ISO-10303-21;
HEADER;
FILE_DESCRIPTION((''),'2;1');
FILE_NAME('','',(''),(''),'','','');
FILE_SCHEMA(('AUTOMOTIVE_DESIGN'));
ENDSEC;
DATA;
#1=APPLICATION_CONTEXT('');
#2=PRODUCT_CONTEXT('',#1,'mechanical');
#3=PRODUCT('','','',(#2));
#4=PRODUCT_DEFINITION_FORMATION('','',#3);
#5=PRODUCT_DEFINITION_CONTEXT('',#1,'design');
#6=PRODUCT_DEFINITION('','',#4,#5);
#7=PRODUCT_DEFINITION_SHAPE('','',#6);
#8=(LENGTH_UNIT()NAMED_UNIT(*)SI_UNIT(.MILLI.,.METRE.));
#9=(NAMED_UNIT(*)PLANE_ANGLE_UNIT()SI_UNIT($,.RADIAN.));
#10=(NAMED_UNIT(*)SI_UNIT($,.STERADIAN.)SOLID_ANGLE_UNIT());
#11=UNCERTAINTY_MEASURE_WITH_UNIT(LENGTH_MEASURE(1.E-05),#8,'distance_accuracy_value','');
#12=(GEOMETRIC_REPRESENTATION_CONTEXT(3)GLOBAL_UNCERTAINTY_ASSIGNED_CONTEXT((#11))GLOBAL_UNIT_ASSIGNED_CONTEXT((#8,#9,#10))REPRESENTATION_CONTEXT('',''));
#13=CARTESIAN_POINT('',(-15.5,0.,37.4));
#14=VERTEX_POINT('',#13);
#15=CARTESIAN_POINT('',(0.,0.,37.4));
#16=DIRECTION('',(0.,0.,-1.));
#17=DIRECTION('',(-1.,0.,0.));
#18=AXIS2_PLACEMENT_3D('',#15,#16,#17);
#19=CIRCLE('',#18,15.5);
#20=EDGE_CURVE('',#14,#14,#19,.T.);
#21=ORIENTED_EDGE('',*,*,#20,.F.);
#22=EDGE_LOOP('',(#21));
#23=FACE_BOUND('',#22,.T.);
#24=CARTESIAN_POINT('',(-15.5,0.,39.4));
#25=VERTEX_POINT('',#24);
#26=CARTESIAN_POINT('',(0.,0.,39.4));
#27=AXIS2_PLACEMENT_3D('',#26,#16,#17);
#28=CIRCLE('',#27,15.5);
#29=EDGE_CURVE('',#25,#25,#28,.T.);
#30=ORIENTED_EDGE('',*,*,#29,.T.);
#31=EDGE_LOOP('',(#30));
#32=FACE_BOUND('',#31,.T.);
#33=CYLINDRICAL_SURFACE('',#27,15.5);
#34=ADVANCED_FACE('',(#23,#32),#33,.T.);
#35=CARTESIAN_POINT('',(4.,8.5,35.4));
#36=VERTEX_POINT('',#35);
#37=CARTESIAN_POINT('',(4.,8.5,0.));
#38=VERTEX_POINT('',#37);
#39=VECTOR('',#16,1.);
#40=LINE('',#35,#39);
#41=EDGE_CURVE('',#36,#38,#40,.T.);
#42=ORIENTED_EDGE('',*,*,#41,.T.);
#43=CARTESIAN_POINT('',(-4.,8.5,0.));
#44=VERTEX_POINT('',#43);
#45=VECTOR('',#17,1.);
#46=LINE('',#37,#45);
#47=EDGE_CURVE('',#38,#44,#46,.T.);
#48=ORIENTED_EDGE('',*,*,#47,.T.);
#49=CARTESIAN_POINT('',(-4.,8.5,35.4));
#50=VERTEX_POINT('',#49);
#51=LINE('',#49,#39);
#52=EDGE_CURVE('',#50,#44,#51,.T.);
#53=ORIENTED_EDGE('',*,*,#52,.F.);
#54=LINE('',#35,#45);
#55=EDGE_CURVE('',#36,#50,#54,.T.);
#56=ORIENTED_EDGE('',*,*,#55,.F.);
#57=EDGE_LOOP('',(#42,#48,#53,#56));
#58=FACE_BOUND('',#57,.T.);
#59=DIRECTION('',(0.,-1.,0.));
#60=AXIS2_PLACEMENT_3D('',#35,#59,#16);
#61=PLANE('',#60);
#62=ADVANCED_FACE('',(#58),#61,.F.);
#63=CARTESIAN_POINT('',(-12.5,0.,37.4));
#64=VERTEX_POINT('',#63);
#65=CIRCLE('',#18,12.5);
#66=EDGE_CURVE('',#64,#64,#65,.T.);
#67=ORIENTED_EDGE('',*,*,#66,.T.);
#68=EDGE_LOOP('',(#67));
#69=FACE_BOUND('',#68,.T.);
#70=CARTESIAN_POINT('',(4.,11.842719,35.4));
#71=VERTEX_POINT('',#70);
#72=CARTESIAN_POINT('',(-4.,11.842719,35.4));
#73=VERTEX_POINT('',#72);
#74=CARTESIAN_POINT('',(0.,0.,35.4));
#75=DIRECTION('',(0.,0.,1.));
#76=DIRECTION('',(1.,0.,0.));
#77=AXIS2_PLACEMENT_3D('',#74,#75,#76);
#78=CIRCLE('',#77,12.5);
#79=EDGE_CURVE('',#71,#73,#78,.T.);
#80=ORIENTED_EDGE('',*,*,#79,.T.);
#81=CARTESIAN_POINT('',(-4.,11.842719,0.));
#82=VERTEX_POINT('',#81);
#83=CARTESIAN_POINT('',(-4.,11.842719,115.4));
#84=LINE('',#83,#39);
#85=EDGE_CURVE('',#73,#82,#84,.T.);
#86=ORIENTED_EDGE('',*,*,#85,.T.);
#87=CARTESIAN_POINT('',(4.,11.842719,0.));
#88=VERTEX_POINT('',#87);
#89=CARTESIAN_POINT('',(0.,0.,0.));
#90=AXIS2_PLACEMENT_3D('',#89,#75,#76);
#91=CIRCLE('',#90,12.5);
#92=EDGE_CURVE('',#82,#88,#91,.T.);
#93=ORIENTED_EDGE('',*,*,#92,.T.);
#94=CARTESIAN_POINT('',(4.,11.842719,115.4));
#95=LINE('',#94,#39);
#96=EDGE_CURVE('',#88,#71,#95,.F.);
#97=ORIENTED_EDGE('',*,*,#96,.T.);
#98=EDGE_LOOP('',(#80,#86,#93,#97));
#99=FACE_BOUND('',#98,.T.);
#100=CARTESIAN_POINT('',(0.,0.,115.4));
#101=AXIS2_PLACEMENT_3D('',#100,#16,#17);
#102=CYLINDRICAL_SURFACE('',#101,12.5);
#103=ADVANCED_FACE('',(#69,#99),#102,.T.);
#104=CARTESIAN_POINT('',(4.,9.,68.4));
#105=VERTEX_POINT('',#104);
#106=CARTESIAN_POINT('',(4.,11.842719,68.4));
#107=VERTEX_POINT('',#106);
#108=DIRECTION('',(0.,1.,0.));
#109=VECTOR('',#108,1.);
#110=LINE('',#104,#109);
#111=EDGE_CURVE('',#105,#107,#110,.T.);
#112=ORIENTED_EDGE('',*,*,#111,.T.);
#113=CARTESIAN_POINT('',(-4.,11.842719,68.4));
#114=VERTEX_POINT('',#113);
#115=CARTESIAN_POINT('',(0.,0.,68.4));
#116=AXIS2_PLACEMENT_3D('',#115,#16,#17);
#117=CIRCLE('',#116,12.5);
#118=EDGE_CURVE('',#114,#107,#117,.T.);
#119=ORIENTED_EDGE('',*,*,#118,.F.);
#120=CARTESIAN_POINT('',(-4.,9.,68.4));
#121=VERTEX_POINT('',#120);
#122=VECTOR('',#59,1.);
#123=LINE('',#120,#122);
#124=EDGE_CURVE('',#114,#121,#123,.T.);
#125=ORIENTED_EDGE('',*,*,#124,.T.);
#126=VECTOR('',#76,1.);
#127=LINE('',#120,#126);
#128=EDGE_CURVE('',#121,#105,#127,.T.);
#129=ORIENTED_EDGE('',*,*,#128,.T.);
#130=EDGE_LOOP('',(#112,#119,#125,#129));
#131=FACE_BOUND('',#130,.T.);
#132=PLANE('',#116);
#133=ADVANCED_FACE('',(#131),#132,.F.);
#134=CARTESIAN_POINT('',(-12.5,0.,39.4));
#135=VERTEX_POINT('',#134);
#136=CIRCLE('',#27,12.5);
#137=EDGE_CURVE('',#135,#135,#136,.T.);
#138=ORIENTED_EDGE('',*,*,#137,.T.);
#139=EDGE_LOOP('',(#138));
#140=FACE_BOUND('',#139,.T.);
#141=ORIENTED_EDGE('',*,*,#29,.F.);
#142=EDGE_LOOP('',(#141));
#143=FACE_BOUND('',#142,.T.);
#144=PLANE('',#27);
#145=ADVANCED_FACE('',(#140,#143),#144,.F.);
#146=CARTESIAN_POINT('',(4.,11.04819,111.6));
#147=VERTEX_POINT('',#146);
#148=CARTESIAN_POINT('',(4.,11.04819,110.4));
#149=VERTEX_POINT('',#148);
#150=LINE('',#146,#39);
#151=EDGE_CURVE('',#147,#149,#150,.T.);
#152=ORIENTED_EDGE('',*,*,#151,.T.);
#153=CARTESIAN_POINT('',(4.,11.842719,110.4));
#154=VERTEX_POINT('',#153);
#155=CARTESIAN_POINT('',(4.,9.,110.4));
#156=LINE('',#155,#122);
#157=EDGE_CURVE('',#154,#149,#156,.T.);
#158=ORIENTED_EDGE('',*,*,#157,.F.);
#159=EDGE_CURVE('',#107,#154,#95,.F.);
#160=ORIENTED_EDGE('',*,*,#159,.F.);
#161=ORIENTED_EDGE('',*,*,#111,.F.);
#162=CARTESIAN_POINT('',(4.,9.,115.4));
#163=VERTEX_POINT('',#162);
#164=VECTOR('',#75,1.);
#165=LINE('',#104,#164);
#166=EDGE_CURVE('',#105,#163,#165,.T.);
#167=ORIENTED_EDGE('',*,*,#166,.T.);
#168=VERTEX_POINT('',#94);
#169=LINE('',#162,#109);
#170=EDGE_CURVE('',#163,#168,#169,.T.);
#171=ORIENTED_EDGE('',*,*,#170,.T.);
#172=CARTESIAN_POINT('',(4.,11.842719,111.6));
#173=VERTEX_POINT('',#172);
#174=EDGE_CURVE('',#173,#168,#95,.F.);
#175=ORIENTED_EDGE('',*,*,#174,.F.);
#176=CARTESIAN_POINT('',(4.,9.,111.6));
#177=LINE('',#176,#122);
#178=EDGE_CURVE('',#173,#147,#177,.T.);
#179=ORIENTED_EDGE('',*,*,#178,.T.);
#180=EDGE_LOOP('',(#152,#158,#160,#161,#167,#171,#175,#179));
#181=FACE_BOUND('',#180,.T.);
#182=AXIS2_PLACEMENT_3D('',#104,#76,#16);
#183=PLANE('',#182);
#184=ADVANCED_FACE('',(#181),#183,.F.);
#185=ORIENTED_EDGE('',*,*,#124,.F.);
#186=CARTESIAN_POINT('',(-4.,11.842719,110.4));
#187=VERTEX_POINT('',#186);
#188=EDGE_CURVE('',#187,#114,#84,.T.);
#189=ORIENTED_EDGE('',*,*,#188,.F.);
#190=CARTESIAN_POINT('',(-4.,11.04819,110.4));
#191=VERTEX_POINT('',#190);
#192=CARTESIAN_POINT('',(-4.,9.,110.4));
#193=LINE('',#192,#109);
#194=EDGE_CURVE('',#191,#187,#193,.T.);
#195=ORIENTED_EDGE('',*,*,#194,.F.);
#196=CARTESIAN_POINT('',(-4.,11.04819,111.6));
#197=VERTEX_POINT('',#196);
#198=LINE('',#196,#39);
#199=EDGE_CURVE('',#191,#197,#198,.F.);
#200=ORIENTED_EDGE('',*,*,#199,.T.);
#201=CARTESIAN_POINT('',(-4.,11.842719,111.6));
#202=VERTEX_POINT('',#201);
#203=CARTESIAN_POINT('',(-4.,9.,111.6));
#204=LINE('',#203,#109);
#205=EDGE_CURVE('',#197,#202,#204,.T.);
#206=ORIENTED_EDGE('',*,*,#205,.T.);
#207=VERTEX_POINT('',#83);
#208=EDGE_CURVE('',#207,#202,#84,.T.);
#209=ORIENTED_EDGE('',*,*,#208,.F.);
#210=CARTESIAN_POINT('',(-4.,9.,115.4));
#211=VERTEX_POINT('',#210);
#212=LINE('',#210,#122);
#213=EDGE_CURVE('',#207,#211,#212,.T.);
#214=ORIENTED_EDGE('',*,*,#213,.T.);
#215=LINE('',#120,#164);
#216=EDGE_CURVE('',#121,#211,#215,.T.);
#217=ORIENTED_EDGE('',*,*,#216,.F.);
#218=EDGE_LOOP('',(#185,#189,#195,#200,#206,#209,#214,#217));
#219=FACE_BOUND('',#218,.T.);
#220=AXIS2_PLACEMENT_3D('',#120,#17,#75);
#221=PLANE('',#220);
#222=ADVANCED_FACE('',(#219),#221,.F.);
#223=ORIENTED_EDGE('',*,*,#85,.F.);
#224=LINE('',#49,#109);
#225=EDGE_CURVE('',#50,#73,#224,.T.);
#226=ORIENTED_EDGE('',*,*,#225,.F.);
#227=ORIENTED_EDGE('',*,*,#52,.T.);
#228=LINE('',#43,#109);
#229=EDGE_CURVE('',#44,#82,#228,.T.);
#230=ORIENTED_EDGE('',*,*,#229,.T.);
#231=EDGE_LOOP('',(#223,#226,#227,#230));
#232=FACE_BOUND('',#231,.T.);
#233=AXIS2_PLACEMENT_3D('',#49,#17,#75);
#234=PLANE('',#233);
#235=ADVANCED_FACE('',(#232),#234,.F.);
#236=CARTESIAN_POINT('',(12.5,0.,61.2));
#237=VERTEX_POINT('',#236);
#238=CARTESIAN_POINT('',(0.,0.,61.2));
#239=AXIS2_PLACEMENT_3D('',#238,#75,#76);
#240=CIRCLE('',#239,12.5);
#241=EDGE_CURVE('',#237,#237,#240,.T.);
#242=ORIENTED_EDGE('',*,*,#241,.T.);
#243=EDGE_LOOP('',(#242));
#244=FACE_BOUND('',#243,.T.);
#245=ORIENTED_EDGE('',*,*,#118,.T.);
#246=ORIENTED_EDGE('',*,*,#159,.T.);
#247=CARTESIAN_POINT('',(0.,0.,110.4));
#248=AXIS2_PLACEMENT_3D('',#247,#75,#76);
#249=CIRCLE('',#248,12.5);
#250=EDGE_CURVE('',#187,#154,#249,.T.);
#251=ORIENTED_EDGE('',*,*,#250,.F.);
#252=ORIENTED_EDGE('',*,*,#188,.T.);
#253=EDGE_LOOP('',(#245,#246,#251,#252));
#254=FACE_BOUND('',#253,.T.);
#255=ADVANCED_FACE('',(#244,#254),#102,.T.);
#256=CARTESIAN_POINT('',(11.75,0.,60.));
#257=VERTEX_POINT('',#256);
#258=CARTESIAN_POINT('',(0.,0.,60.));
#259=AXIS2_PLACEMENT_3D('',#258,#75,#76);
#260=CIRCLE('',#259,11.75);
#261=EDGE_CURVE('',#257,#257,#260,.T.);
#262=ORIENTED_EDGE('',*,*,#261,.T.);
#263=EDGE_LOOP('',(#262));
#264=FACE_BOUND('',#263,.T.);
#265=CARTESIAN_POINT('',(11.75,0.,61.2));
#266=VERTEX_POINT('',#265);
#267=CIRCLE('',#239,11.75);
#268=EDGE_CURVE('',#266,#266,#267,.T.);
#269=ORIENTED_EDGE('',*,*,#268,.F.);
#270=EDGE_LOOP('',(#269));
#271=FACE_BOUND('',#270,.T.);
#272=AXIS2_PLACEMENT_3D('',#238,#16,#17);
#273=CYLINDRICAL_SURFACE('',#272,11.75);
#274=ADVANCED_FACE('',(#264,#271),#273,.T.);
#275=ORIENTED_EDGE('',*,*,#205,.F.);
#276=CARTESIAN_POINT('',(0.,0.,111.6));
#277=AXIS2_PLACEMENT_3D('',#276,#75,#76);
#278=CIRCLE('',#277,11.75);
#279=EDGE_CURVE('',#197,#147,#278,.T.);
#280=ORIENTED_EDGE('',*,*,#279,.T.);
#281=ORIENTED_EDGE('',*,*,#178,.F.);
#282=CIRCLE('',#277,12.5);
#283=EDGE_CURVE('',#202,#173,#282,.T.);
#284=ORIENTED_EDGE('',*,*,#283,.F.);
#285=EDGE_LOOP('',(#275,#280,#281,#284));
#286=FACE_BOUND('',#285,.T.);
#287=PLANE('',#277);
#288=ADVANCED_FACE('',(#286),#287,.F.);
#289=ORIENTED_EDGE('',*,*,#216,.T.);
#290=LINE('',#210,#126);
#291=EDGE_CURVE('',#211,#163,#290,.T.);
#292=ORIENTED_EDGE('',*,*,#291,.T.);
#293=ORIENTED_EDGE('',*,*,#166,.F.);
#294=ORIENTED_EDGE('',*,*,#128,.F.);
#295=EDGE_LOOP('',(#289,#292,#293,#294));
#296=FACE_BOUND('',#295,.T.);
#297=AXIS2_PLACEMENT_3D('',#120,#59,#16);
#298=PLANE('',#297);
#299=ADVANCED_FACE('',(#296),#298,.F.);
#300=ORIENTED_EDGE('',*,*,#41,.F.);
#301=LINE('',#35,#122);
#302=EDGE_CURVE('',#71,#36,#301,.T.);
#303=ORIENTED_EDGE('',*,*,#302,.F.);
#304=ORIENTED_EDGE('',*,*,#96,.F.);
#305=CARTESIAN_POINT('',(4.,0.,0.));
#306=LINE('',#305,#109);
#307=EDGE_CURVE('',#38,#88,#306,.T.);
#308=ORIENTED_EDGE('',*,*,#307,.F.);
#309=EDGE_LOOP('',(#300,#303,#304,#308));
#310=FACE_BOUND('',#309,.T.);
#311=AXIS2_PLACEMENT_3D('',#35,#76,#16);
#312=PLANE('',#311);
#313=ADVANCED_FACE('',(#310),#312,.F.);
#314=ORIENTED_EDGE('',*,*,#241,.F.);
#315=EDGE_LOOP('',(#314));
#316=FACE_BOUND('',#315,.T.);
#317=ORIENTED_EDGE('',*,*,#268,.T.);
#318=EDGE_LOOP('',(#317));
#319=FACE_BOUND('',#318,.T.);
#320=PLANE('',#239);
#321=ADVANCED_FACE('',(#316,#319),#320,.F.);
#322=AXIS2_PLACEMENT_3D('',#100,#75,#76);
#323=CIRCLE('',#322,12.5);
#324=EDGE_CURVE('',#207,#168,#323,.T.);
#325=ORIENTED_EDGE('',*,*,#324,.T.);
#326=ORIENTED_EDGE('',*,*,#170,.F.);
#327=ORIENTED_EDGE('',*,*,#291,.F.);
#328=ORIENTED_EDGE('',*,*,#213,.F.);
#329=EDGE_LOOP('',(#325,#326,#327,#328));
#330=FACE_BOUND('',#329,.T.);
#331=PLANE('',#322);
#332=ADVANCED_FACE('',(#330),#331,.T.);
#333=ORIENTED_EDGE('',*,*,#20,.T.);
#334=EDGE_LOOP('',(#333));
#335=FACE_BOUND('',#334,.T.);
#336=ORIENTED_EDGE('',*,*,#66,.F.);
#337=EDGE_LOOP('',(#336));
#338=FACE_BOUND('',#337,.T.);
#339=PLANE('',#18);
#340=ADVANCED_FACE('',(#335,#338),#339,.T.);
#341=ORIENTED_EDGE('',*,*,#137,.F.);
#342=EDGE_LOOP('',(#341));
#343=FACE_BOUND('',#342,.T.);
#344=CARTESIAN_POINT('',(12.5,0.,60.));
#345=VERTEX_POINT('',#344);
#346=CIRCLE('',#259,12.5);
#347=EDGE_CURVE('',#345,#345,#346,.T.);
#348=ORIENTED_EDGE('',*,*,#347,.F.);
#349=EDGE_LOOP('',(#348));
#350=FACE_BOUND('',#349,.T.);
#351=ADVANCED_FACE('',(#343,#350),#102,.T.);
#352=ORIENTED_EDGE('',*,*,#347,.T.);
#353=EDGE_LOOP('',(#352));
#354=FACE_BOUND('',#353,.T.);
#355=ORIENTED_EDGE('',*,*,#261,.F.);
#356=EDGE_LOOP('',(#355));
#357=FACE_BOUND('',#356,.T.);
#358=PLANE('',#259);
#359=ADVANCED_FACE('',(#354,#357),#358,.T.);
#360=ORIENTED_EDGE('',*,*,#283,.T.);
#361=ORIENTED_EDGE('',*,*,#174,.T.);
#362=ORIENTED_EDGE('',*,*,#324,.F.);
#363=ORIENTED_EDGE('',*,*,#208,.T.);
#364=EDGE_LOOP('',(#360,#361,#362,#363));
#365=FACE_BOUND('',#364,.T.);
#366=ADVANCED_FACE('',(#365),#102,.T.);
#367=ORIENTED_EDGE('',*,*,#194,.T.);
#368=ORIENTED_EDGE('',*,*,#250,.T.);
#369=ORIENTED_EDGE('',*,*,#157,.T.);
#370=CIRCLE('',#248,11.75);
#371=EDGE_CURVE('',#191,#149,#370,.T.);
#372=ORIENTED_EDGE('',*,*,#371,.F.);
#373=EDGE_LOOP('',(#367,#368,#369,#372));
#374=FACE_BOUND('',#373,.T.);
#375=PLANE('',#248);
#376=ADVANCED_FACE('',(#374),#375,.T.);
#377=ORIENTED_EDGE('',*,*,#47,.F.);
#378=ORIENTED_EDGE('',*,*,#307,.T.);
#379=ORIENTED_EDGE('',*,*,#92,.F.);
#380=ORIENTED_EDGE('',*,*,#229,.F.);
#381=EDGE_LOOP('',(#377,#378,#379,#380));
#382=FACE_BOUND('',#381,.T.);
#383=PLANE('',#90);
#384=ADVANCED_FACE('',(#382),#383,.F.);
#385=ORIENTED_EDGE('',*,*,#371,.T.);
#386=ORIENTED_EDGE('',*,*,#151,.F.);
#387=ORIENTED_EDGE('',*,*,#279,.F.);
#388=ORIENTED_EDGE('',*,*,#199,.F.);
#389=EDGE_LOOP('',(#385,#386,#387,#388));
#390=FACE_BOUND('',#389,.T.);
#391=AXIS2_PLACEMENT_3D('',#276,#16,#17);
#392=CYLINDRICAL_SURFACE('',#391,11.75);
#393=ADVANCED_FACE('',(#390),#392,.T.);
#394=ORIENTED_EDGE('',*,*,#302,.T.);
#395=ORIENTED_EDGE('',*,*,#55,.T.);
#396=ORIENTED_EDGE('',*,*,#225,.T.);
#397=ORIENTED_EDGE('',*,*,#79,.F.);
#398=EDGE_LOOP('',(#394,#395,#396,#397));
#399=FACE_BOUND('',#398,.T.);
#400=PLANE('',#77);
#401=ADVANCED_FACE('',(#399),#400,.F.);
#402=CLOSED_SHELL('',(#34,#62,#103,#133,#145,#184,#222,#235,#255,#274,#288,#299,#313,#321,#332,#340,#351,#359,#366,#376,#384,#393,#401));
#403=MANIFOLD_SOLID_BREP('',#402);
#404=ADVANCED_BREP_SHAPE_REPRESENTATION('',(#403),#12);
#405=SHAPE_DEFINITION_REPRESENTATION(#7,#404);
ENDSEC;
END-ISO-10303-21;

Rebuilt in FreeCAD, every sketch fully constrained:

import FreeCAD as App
import Part
import Sketcher
from FreeCAD import Vector
Q = App.Units.Quantity

doc = App.newDocument("Part")
params = doc.addObject("Spreadsheet::Sheet", "Params")
for row, (alias, value) in enumerate([
    ("sketch1_diameter", "25 mm"),
    ("pad1_length", "115.4 mm"),
    ("sketch2_width", "8 mm"),
    ("pocket1_length", "35.4 mm"),
    ("sketch3_diameter", "31 mm"),
    ("pad2_length", "2 mm"),
    ("sketch4_diameter", "25 mm"),
    ("sketch4_diameter2", "23.5 mm"),
    ("pocket2_length", "1.2 mm"),
    ("sketch5_width", "8 mm"),
    ("sketch5_height", "7 mm"),
    ("pocket3_length", "47 mm"),
    ("sketch6_diameter", "25 mm"),
    ("sketch6_diameter2", "23.5 mm"),
    ("pocket4_length", "1.2 mm"),
], start=1):
    params.set(f"A{row}", alias)
    params.set(f"B{row}", "=" + value)
    params.setAlias(f"B{row}", alias)

body = doc.addObject("PartDesign::Body", "Body")

sketch1 = body.newObject("Sketcher::SketchObject", "Sketch")
sketch1.AttachmentSupport = (doc.getObject("XY_Plane"), [""])
sketch1.MapMode = "FlatFace"
sketch1.addGeometry(Part.Circle(Vector(0, 0, 0), Vector(0, 0, 1), 12), False)
sketch1.addConstraint(Sketcher.Constraint("Coincident", 0, 3, -1, 1))
sketch1.addConstraint(Sketcher.Constraint("Diameter", 0, Q("25 mm")))
sketch1.setExpression("Constraints[1]", "Params.sketch1_diameter")
pad1 = body.newObject("PartDesign::Pad", "Pad")
pad1.Profile = sketch1
pad1.setExpression("Length", "Params.pad1_length")

sketch2 = body.newObject("Sketcher::SketchObject", "Sketch001")
sketch2.AttachmentSupport = (doc.getObject("XY_Plane"), [""])
sketch2.MapMode = "FlatFace"
sketch2.addGeometry(Part.LineSegment(Vector(4, 16, 0), Vector(4, 8, 0)), False)
sketch2.addGeometry(Part.LineSegment(Vector(4, 8, 0), Vector(-4, 8, 0)), False)
sketch2.addGeometry(Part.LineSegment(Vector(-4, 8, 0), Vector(-4, 16, 0)), False)
sketch2.addGeometry(Part.LineSegment(Vector(-4, 16, 0), Vector(4, 16, 0)), False)
sketch2.addConstraint(Sketcher.Constraint("Coincident", 0, 2, 1, 1))
sketch2.addConstraint(Sketcher.Constraint("Coincident", 1, 2, 2, 1))
sketch2.addConstraint(Sketcher.Constraint("Coincident", 2, 2, 3, 1))
sketch2.addConstraint(Sketcher.Constraint("Coincident", 3, 2, 0, 1))
sketch2.addConstraint(Sketcher.Constraint("Vertical", 0))
sketch2.addConstraint(Sketcher.Constraint("Horizontal", 1))
sketch2.addConstraint(Sketcher.Constraint("Vertical", 2))
sketch2.addConstraint(Sketcher.Constraint("Horizontal", 3))
sketch2.addConstraint(Sketcher.Constraint("Equal", 3, 0))
sketch2.addConstraint(Sketcher.Constraint("DistanceX", 1, 2, 1, 1, Q("8 mm")))
sketch2.addConstraint(Sketcher.Constraint("DistanceX", -1, 1, 0, 2, Q("4 mm")))
sketch2.addConstraint(Sketcher.Constraint("DistanceY", -1, 1, 0, 2, Q("8.5 mm")))
sketch2.setExpression("Constraints[9]", "Params.sketch2_width")
pocket1 = body.newObject("PartDesign::Pocket", "Pocket")
pocket1.Profile = sketch2
pocket1.setExpression("Length", "Params.pocket1_length")
pocket1.Reversed = True

sketch3 = body.newObject("Sketcher::SketchObject", "Sketch002")
sketch3.AttachmentSupport = (doc.getObject("XY_Plane"), [""])
sketch3.MapMode = "FlatFace"
sketch3.AttachmentOffset = App.Placement(Vector(0, 0, 37.4), App.Rotation())
sketch3.addGeometry(Part.Circle(Vector(0, 0, 0), Vector(0, 0, 1), 16), False)
sketch3.addConstraint(Sketcher.Constraint("Coincident", 0, 3, -1, 1))
sketch3.addConstraint(Sketcher.Constraint("Diameter", 0, Q("31 mm")))
sketch3.setExpression("Constraints[1]", "Params.sketch3_diameter")
pad2 = body.newObject("PartDesign::Pad", "Pad001")
pad2.Profile = sketch3
pad2.setExpression("Length", "Params.pad2_length")

sketch4 = body.newObject("Sketcher::SketchObject", "Sketch003")
sketch4.AttachmentSupport = (doc.getObject("XY_Plane"), [""])
sketch4.MapMode = "FlatFace"
sketch4.AttachmentOffset = App.Placement(Vector(0, 0, 60), App.Rotation())
sketch4.addGeometry(Part.Circle(Vector(0, 0, 0), Vector(0, 0, 1), 12), False)
sketch4.addGeometry(Part.Circle(Vector(0, 0, 0), Vector(0, 0, 1), 12), False)
sketch4.addConstraint(Sketcher.Constraint("Coincident", 0, 3, -1, 1))
sketch4.addConstraint(Sketcher.Constraint("Coincident", 1, 3, -1, 1))
sketch4.addConstraint(Sketcher.Constraint("Diameter", 0, Q("25 mm")))
sketch4.addConstraint(Sketcher.Constraint("Diameter", 1, Q("23.5 mm")))
sketch4.setExpression("Constraints[2]", "Params.sketch4_diameter")
sketch4.setExpression("Constraints[3]", "Params.sketch4_diameter2")
pocket2 = body.newObject("PartDesign::Pocket", "Pocket001")
pocket2.Profile = sketch4
pocket2.setExpression("Length", "Params.pocket2_length")
pocket2.Reversed = True

sketch5 = body.newObject("Sketcher::SketchObject", "Sketch004")
sketch5.AttachmentSupport = (doc.getObject("XY_Plane"), [""])
sketch5.MapMode = "FlatFace"
sketch5.AttachmentOffset = App.Placement(Vector(0, 0, 115.4), App.Rotation())
sketch5.addGeometry(Part.LineSegment(Vector(-4, 16, 0), Vector(-4, 9, 0)), False)
sketch5.addGeometry(Part.LineSegment(Vector(-4, 9, 0), Vector(4, 9, 0)), False)
sketch5.addGeometry(Part.LineSegment(Vector(4, 9, 0), Vector(4, 16, 0)), False)
sketch5.addGeometry(Part.LineSegment(Vector(4, 16, 0), Vector(-4, 16, 0)), False)
sketch5.addConstraint(Sketcher.Constraint("Coincident", 0, 2, 1, 1))
sketch5.addConstraint(Sketcher.Constraint("Coincident", 1, 2, 2, 1))
sketch5.addConstraint(Sketcher.Constraint("Coincident", 2, 2, 3, 1))
sketch5.addConstraint(Sketcher.Constraint("Coincident", 3, 2, 0, 1))
sketch5.addConstraint(Sketcher.Constraint("Vertical", 0))
sketch5.addConstraint(Sketcher.Constraint("Horizontal", 1))
sketch5.addConstraint(Sketcher.Constraint("Vertical", 2))
sketch5.addConstraint(Sketcher.Constraint("Horizontal", 3))
sketch5.addConstraint(Sketcher.Constraint("DistanceX", 1, 1, 1, 2, Q("8 mm")))
sketch5.addConstraint(Sketcher.Constraint("DistanceY", 0, 2, 0, 1, Q("7 mm")))
sketch5.addConstraint(Sketcher.Constraint("DistanceX", 0, 2, -1, 1, Q("4 mm")))
sketch5.addConstraint(Sketcher.Constraint("DistanceY", -1, 1, 0, 2, Q("9 mm")))
sketch5.setExpression("Constraints[8]", "Params.sketch5_width")
sketch5.setExpression("Constraints[9]", "Params.sketch5_height")
pocket3 = body.newObject("PartDesign::Pocket", "Pocket002")
pocket3.Profile = sketch5
pocket3.setExpression("Length", "Params.pocket3_length")

sketch6 = body.newObject("Sketcher::SketchObject", "Sketch005")
sketch6.AttachmentSupport = (doc.getObject("XY_Plane"), [""])
sketch6.MapMode = "FlatFace"
sketch6.AttachmentOffset = App.Placement(Vector(0, 0, 110.4), App.Rotation())
sketch6.addGeometry(Part.Circle(Vector(0, 0, 0), Vector(0, 0, 1), 12), False)
sketch6.addGeometry(Part.Circle(Vector(0, 0, 0), Vector(0, 0, 1), 12), False)
sketch6.addConstraint(Sketcher.Constraint("Coincident", 0, 3, -1, 1))
sketch6.addConstraint(Sketcher.Constraint("Coincident", 1, 3, -1, 1))
sketch6.addConstraint(Sketcher.Constraint("Diameter", 0, Q("25 mm")))
sketch6.addConstraint(Sketcher.Constraint("Diameter", 1, Q("23.5 mm")))
sketch6.setExpression("Constraints[2]", "Params.sketch6_diameter")
sketch6.setExpression("Constraints[3]", "Params.sketch6_diameter2")
pocket4 = body.newObject("PartDesign::Pocket", "Pocket003")
pocket4.Profile = sketch6
pocket4.setExpression("Length", "Params.pocket4_length")
pocket4.Reversed = True

doc.recompute()
